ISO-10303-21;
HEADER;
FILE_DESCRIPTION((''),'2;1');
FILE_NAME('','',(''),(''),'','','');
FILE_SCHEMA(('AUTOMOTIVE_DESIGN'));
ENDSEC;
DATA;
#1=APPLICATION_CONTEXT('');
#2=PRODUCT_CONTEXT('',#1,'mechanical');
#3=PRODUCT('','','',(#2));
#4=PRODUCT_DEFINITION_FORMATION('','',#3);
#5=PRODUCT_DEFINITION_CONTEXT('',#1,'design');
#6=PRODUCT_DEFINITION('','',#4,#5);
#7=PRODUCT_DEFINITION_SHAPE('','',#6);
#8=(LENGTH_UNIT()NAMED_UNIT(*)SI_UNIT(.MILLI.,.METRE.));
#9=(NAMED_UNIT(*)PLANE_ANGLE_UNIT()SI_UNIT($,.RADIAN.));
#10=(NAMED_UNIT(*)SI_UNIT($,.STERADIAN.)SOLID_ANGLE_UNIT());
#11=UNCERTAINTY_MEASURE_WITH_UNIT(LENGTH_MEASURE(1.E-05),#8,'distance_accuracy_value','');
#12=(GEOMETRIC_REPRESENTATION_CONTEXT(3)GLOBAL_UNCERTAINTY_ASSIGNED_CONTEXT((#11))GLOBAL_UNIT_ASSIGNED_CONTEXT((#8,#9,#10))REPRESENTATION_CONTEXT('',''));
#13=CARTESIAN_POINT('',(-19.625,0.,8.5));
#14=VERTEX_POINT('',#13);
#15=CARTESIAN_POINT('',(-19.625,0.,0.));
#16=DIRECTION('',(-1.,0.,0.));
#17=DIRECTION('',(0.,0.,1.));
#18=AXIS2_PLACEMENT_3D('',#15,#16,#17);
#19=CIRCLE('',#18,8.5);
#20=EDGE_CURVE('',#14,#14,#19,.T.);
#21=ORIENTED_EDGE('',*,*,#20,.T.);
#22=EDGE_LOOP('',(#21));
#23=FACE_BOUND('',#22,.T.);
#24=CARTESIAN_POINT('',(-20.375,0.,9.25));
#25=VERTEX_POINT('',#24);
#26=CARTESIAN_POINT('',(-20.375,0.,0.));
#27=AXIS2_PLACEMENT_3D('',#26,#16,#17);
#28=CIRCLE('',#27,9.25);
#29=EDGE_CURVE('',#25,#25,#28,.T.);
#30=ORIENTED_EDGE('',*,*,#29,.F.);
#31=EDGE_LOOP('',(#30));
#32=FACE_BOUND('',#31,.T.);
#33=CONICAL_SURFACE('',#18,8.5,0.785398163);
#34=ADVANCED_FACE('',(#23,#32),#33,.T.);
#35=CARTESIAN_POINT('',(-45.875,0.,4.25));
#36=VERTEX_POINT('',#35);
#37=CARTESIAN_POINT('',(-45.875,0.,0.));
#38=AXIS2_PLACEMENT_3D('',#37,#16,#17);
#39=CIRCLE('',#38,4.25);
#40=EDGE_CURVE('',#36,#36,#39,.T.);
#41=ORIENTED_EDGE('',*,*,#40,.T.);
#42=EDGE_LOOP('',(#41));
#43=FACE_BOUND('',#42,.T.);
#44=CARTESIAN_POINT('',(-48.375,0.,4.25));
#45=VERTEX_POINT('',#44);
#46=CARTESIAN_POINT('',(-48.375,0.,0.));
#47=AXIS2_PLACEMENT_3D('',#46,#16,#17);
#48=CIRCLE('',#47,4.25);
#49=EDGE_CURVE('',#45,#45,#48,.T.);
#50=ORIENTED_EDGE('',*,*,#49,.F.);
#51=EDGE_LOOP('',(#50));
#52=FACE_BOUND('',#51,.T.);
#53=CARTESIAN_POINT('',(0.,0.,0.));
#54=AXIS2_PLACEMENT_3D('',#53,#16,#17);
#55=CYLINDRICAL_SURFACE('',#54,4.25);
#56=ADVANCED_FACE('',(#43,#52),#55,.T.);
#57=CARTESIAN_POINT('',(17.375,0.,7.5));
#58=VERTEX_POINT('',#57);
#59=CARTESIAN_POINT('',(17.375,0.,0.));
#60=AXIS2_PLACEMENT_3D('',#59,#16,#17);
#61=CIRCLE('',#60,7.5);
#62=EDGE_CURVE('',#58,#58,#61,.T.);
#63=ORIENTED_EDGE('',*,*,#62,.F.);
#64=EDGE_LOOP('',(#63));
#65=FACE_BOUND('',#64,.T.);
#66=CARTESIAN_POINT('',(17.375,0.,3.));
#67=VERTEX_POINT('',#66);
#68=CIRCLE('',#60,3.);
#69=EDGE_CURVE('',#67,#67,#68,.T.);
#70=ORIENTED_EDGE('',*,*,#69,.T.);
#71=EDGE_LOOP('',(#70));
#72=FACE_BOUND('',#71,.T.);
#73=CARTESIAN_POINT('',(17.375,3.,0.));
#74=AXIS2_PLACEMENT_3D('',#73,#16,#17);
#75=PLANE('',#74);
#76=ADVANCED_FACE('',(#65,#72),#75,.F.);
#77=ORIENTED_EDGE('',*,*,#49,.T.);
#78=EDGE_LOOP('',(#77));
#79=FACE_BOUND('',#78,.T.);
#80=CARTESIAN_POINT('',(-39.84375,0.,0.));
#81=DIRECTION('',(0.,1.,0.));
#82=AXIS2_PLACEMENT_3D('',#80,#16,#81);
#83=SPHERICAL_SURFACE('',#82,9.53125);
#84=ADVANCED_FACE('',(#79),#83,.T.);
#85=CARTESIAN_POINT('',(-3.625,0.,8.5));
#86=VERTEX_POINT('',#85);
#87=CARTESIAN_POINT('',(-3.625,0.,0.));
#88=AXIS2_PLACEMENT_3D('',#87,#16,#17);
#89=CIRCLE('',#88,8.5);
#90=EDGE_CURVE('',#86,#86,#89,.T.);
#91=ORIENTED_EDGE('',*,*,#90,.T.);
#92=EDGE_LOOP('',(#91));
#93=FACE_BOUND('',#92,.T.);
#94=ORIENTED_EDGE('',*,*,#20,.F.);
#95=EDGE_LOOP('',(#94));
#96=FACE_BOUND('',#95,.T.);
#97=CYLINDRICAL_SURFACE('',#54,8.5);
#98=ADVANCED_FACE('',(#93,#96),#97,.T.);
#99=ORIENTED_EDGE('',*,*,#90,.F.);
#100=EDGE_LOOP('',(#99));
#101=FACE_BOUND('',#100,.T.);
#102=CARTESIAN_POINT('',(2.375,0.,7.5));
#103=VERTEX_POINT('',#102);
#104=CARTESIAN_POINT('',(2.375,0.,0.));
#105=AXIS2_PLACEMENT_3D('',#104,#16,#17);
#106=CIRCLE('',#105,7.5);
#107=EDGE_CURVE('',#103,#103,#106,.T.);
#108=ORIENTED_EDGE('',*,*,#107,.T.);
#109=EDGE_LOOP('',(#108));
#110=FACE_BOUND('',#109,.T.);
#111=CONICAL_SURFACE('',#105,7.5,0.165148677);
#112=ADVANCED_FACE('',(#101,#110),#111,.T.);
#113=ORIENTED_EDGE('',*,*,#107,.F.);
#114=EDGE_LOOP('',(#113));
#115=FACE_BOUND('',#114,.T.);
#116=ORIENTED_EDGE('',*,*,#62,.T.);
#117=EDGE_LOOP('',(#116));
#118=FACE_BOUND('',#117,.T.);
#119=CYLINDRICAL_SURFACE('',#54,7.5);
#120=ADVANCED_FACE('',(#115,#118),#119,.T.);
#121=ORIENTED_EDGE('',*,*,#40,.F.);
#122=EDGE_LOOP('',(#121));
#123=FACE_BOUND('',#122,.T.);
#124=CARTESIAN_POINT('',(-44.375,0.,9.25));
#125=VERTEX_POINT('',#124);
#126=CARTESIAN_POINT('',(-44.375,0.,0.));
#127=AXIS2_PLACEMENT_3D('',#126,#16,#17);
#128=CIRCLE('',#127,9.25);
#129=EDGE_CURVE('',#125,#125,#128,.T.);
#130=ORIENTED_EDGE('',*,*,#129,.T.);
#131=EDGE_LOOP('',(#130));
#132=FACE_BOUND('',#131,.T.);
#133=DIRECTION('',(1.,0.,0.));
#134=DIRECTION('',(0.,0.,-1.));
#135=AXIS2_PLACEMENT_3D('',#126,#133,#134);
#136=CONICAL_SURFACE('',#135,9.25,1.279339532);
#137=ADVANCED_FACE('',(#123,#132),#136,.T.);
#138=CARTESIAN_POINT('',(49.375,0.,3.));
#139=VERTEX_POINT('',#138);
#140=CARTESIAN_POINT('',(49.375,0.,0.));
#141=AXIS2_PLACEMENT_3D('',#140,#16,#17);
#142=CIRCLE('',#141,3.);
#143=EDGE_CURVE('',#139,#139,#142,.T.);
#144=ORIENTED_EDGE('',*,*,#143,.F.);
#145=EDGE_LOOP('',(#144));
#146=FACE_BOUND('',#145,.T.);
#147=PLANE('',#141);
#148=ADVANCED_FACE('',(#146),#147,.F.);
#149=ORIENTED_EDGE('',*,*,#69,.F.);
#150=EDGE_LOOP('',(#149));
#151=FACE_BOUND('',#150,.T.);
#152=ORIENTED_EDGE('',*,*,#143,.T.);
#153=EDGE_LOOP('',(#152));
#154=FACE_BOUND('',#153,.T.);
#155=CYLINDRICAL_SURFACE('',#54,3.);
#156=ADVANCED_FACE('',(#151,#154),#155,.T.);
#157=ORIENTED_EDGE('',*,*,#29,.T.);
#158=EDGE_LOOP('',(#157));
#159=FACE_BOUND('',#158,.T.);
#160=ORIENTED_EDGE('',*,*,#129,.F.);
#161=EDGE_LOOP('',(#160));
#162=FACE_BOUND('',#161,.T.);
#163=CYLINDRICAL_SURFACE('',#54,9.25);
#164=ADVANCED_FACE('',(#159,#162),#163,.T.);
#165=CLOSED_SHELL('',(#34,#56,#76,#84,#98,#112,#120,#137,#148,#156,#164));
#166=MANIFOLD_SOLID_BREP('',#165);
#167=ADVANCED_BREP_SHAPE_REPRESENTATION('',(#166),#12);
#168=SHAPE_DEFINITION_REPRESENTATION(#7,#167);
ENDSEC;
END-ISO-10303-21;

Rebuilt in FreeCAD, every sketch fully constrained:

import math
import FreeCAD as App
import Part
import Sketcher
Q = App.Units.Quantity

doc = App.newDocument("Part")
params = doc.addObject("Spreadsheet::Sheet", "Params")
for row, (alias, value) in enumerate([
    ("sketch1_width", "32 mm"),
    ("sketch1_width2", "15 mm"),
    ("sketch1_width3", "16 mm"),
    ("sketch1_width4", "24 mm"),
    ("sketch1_height", "3 mm"),
    ("revolution_angle", "360 deg"),
], start=1):
    params.set(f"A{row}", alias)
    params.set(f"B{row}", "=" + value)
    params.setAlias(f"B{row}", alias)

body = doc.addObject("PartDesign::Body", "Body")

# Sketch on XY plane
sketch1 = body.newObject("Sketcher::SketchObject", "Sketch")
sketch1.AttachmentSupport = (doc.getObject("XY_Plane"), [""])
sketch1.MapMode = "FlatFace"
sketch1.addGeometry([
    Part.LineSegment(App.Vector(-49.375, 0, 0), App.Vector(49.375, 0, 0)),  # 0
    Part.LineSegment(App.Vector(49.375, 0, 0), App.Vector(49.375, 3, 0)),  # 1
    Part.LineSegment(App.Vector(49.375, 3, 0), App.Vector(17.375, 3, 0)),  # 2
    Part.LineSegment(App.Vector(17.375, 3, 0), App.Vector(17.375, 7.5, 0)),  # 3
    Part.LineSegment(App.Vector(17.375, 7.5, 0), App.Vector(2.375, 7.5, 0)),  # 4
    Part.LineSegment(App.Vector(2.375, 7.5, 0), App.Vector(-3.625, 8.5, 0)),  # 5
    Part.LineSegment(App.Vector(-3.625, 8.5, 0), App.Vector(-19.625, 8.5, 0)),  # 6
    Part.LineSegment(App.Vector(-19.625, 8.5, 0), App.Vector(-20.375, 9.25, 0)),  # 7
    Part.LineSegment(App.Vector(-20.375, 9.25, 0), App.Vector(-44.375, 9.25, 0)),  # 8
    Part.LineSegment(App.Vector(-44.375, 9.25, 0), App.Vector(-45.875, 4.25, 0)),  # 9
    Part.LineSegment(App.Vector(-45.875, 4.25, 0), App.Vector(-48.375, 4.25, 0)),  # 10
    Part.ArcOfCircle(Part.Circle(App.Vector(-39.84375, 0, 0), App.Vector(0, 0, 1), 9.53125), math.radians(153.51896), math.radians(180)),  # 11
], False)
sketch1.addConstraint([
    Sketcher.Constraint("Coincident", 0, 2, 1, 1),
    Sketcher.Constraint("Coincident", 1, 2, 2, 1),
    Sketcher.Constraint("Coincident", 2, 2, 3, 1),
    Sketcher.Constraint("Coincident", 3, 2, 4, 1),
    Sketcher.Constraint("Coincident", 4, 2, 5, 1),
    Sketcher.Constraint("Coincident", 5, 2, 6, 1),
    Sketcher.Constraint("Coincident", 6, 2, 7, 1),
    Sketcher.Constraint("Coincident", 7, 2, 8, 1),
    Sketcher.Constraint("Coincident", 8, 2, 9, 1),
    Sketcher.Constraint("Coincident", 9, 2, 10, 1),
    Sketcher.Constraint("Coincident", 10, 2, 11, 1),
    Sketcher.Constraint("Coincident", 11, 2, 0, 1),
    Sketcher.Constraint("Horizontal", 0),
    Sketcher.Constraint("Vertical", 1),
    Sketcher.Constraint("Horizontal", 2),
    Sketcher.Constraint("Vertical", 3),
    Sketcher.Constraint("Horizontal", 4),
    Sketcher.Constraint("Horizontal", 6),
    Sketcher.Constraint("Horizontal", 8),
    Sketcher.Constraint("Horizontal", 10),
    Sketcher.Constraint("Symmetric", 0, 2, 11, 2, -1, 1),
    Sketcher.Constraint("PointOnObject", 11, 3, -1),
    Sketcher.Constraint("DistanceX", 2, 2, 2, 1, 32.0),
    Sketcher.Constraint("DistanceX", 4, 2, 4, 1, 15.0),
    Sketcher.Constraint("DistanceX", 6, 2, 6, 1, 16.0),
    Sketcher.Constraint("DistanceX", 8, 2, 8, 1, 24.0),
    Sketcher.Constraint("DistanceY", 1, 1, 1, 2, 3.0),
    Sketcher.Constraint("Angle", 7, Q("135 deg")),
    Sketcher.Constraint("DistanceX", 10, 2, 10, 1, 2.5),
    Sketcher.Constraint("DistanceY", 3, 1, 3, 2, 4.5),
    Sketcher.Constraint("DistanceX", 5, 2, 4, 2, 6.0),
    Sketcher.Constraint("DistanceY", 4, 2, 5, 2, 1.0),
    Sketcher.Constraint("DistanceY", 9, 2, 8, 2, 5.0),
    Sketcher.Constraint("DistanceX", 10, 2, 8, 2, 4.0),
    Sketcher.Constraint("DistanceX", 11, 2, 10, 2, 1.0),
    Sketcher.Constraint("DistanceX", 0, 1, 0, 2, 98.75),
])
sketch1.setExpression("Constraints[22]", "Params.sketch1_width")
sketch1.setExpression("Constraints[23]", "Params.sketch1_width2")
sketch1.setExpression("Constraints[24]", "Params.sketch1_width3")
sketch1.setExpression("Constraints[25]", "Params.sketch1_width4")
sketch1.setExpression("Constraints[26]", "Params.sketch1_height")
revolution = body.newObject("PartDesign::Revolution", "Revolution")
revolution.Profile = sketch1
revolution.ReferenceAxis = (sketch1, ["H_Axis"])
revolution.setExpression("Angle", "Params.revolution_angle")

doc.recompute()
